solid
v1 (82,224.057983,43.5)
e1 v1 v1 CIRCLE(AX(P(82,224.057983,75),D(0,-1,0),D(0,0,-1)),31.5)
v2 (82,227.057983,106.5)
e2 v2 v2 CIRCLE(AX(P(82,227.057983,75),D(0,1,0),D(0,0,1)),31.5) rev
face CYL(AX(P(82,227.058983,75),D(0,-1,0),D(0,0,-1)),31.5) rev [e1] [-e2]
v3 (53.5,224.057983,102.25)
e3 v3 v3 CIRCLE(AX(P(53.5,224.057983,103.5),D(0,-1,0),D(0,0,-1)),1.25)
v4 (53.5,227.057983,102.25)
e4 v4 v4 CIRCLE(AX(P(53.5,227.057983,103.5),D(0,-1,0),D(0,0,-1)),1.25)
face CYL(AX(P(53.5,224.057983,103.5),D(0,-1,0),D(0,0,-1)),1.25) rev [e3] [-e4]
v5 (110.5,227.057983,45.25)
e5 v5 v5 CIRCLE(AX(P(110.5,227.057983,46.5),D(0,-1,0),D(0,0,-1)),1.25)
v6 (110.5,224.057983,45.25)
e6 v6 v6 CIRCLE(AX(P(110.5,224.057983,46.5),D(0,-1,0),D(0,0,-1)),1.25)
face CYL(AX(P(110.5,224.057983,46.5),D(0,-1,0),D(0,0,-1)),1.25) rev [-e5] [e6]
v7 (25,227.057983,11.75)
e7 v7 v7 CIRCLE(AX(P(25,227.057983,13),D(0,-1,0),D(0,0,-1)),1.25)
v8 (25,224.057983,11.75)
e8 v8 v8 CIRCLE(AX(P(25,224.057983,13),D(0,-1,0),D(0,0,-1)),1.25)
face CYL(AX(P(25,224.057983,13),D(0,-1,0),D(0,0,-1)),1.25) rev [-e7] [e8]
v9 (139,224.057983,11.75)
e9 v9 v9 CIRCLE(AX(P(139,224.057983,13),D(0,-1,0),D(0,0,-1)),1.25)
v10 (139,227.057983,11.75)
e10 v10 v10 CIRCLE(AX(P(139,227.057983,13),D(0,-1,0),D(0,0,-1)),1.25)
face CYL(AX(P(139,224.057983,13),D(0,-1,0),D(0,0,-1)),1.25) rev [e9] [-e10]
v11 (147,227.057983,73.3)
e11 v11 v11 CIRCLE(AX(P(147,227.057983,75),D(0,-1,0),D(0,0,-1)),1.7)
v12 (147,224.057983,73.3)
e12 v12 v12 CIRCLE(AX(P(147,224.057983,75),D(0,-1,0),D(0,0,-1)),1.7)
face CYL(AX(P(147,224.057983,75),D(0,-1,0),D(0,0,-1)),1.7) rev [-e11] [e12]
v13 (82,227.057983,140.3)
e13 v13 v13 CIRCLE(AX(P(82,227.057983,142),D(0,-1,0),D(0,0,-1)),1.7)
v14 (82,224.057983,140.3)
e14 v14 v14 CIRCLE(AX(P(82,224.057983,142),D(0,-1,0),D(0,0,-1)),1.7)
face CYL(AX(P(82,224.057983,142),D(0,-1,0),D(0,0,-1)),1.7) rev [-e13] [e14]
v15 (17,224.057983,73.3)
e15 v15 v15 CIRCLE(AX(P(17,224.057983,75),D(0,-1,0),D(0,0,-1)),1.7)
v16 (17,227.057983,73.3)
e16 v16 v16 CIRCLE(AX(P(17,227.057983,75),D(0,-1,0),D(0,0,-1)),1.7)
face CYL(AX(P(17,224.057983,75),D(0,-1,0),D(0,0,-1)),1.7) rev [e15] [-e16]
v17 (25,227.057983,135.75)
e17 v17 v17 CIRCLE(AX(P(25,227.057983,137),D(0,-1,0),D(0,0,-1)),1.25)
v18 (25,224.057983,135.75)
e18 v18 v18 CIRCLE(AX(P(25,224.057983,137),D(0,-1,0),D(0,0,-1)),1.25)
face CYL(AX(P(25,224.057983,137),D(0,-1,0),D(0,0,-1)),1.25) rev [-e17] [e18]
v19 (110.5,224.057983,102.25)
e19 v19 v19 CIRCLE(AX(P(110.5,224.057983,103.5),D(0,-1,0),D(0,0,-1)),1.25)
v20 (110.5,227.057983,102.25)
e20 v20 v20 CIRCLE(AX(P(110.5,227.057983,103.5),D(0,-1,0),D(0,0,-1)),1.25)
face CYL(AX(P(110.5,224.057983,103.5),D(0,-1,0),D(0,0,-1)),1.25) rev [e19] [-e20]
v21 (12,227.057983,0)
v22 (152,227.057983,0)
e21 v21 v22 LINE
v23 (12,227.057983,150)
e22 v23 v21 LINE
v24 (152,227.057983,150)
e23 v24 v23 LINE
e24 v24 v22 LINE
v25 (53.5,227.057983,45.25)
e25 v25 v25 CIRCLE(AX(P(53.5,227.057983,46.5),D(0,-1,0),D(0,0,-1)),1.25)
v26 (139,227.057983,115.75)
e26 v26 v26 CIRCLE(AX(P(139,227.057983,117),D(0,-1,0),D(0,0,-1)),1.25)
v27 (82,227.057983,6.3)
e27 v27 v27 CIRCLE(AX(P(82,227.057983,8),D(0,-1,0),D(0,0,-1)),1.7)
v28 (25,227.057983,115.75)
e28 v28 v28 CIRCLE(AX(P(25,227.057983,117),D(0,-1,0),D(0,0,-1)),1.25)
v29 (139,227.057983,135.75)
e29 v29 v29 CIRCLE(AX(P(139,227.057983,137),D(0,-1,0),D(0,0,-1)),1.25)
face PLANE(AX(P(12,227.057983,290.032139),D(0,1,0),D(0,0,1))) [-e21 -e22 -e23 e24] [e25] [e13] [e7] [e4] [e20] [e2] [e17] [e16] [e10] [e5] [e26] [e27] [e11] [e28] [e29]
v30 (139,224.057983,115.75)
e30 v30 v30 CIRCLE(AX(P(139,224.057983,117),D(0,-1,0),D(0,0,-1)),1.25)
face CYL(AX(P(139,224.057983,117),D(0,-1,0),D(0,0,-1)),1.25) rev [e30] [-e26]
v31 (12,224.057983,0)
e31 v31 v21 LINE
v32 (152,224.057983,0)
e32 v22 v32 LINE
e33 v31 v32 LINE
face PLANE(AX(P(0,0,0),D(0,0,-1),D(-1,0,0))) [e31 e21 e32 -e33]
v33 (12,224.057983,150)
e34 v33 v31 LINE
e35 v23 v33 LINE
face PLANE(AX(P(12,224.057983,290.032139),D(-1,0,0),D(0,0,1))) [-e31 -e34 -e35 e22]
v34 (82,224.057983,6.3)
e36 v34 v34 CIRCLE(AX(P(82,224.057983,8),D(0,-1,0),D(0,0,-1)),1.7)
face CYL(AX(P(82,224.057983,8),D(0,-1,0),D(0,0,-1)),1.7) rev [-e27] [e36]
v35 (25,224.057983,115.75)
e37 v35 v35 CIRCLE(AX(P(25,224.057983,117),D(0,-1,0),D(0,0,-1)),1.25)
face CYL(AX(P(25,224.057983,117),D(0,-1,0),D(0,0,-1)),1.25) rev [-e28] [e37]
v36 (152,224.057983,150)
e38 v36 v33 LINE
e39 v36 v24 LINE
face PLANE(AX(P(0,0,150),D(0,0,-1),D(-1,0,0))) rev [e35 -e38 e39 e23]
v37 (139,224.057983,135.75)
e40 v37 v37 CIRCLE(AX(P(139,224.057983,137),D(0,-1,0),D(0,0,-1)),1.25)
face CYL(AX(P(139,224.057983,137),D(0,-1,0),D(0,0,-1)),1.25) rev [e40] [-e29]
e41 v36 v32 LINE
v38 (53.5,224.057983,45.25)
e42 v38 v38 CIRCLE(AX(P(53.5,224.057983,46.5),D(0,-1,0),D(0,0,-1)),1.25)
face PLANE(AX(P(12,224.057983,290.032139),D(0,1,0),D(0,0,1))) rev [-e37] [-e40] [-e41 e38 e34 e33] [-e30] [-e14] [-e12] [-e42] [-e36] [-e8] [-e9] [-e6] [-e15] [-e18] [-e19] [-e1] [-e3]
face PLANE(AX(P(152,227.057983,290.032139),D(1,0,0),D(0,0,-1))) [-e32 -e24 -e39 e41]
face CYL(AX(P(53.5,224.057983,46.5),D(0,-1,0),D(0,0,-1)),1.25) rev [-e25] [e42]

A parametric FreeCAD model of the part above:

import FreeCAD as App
import Part
import Sketcher
from FreeCAD import Vector

doc = App.newDocument("Part")
params = doc.addObject("Spreadsheet::Sheet", "Params")
for row, (alias, value) in enumerate([
    ("sketch1_width", "140 mm"),
    ("sketch1_height", "3 mm"),
    ("pad1_length", "150 mm"),
    ("sketch2_diameter", "63 mm"),
    ("sketch3_diameter", "2.5 mm"),
    ("hole_diameter", "2.5 mm"),
    ("sketch4_diameter", "3.4 mm"),
    ("hole2_diameter", "3.4 mm"),
    ("sketch5_diameter", "2.5 mm"),
    ("hole3_diameter", "2.5 mm"),
], start=1):
    params.set(f"A{row}", alias)
    params.set(f"B{row}", "=" + value)
    params.setAlias(f"B{row}", alias)

body = doc.addObject("PartDesign::Body", "Body")

# Sketch on XY plane
sketch1 = body.newObject("Sketcher::SketchObject", "Sketch")
sketch1.AttachmentSupport = (doc.getObject("XY_Plane"), [""])
sketch1.MapMode = "FlatFace"
sketch1.addGeometry([
    Part.LineSegment(Vector(12, 227.1, 0), Vector(12, 224.1, 0)),
    Part.LineSegment(Vector(12, 224.1, 0), Vector(152, 224.1, 0)),
    Part.LineSegment(Vector(152, 224.1, 0), Vector(152, 227.1, 0)),
    Part.LineSegment(Vector(152, 227.1, 0), Vector(12, 227.1, 0)),
], False)
sketch1.addConstraint([
    Sketcher.Constraint("Coincident", 0, 2, 1, 1),
    Sketcher.Constraint("Coincident", 1, 2, 2, 1),
    Sketcher.Constraint("Coincident", 2, 2, 3, 1),
    Sketcher.Constraint("Coincident", 3, 2, 0, 1),
    Sketcher.Constraint("Vertical", 0),
    Sketcher.Constraint("Horizontal", 1),
    Sketcher.Constraint("Vertical", 2),
    Sketcher.Constraint("Horizontal", 3),
    Sketcher.Constraint("DistanceX", 1, 1, 1, 2, 140.0),
    Sketcher.Constraint("DistanceY", 0, 2, 0, 1, 3.0),
    Sketcher.Constraint("DistanceX", -1, 1, 0, 2, 12.0),
    Sketcher.Constraint("DistanceY", -1, 1, 0, 2, 224.057983),
])
sketch1.setExpression("Constraints[8]", "Params.sketch1_width")
sketch1.setExpression("Constraints[9]", "Params.sketch1_height")
pad1 = body.newObject("PartDesign::Pad", "Pad")
pad1.Profile = sketch1
pad1.setExpression("Length", "Params.pad1_length")

# Sketch on XZ plane
sketch2 = body.newObject("Sketcher::SketchObject", "Sketch001")
sketch2.AttachmentSupport = (doc.getObject("XZ_Plane"), [""])
sketch2.MapMode = "FlatFace"
sketch2.AttachmentOffset = App.Placement(Vector(0, 0, -224.057983), App.Rotation())
sketch2.addGeometry(Part.Circle(Vector(82, 75, 0), Vector(0, 0, 1), 32), False)
sketch2.addConstraint([
    Sketcher.Constraint("Diameter", 0, 63.0),
    Sketcher.Constraint("DistanceX", -1, 1, 0, 3, 82.0),
    Sketcher.Constraint("DistanceY", -1, 1, 0, 3, 75.0),
])
sketch2.setExpression("Constraints[0]", "Params.sketch2_diameter")
pocket1 = body.newObject("PartDesign::Pocket", "Pocket")
pocket1.Profile = sketch2
pocket1.Type = "UpToFirst"

# Sketch on XZ plane
sketch3 = body.newObject("Sketcher::SketchObject", "Sketch002")
sketch3.AttachmentSupport = (doc.getObject("XZ_Plane"), [""])
sketch3.MapMode = "FlatFace"
sketch3.AttachmentOffset = App.Placement(Vector(0, 0, -224.057983), App.Rotation())
sketch3.addGeometry([
    Part.Circle(Vector(53.5, 103.5, 0), Vector(0, 0, 1), 1.2),
    Part.Circle(Vector(53.5, 46.5, 0), Vector(0, 0, 1), 1.2),
    Part.Circle(Vector(110.5, 46.5, 0), Vector(0, 0, 1), 1.2),
    Part.Circle(Vector(110.5, 103.5, 0), Vector(0, 0, 1), 1.2),
], False)
sketch3.addConstraint([
    Sketcher.Constraint("Equal", 0, 1),
    Sketcher.Constraint("Equal", 1, 2),
    Sketcher.Constraint("Equal", 2, 3),
    Sketcher.Constraint("Horizontal", 1, 3, 2, 3),
    Sketcher.Constraint("Horizontal", 0, 3, 3, 3),
    Sketcher.Constraint("Vertical", 0, 3, 1, 3),
    Sketcher.Constraint("Vertical", 2, 3, 3, 3),
    Sketcher.Constraint("Diameter", 0, 2.5),
    Sketcher.Constraint("DistanceY", 1, 3, 0, 3, 57.0),
    Sketcher.Constraint("DistanceX", 1, 3, 2, 3, 57.0),
    Sketcher.Constraint("DistanceX", -1, 1, 0, 3, 53.5),
    Sketcher.Constraint("DistanceY", -1, 1, 0, 3, 103.5),
])
sketch3.setExpression("Constraints[7]", "Params.sketch3_diameter")
doc.recompute()
hole = body.newObject("PartDesign::Hole", "Hole")
hole.Profile = sketch3
hole.ThreadType = "None"
hole.setExpression("Diameter", "Params.hole_diameter")
hole.DepthType = "ThroughAll"

# Sketch on XZ plane
sketch4 = body.newObject("Sketcher::SketchObject", "Sketch003")
sketch4.AttachmentSupport = (doc.getObject("XZ_Plane"), [""])
sketch4.MapMode = "FlatFace"
sketch4.AttachmentOffset = App.Placement(Vector(0, 0, -224.057983), App.Rotation())
sketch4.addGeometry([
    Part.Circle(Vector(82, 142, 0), Vector(0, 0, 1), 1.7),
    Part.Circle(Vector(147, 75, 0), Vector(0, 0, 1), 1.7),
    Part.Circle(Vector(82, 8, 0), Vector(0, 0, 1), 1.7),
    Part.Circle(Vector(17, 75, 0), Vector(0, 0, 1), 1.7),
], False)
sketch4.addConstraint([
    Sketcher.Constraint("Equal", 0, 1),
    Sketcher.Constraint("Equal", 1, 2),
    Sketcher.Constraint("Equal", 2, 3),
    Sketcher.Constraint("Horizontal", 1, 3, 3, 3),
    Sketcher.Constraint("Vertical", 0, 3, 2, 3),
    Sketcher.Constraint("Diameter", 0, 3.4),
    Sketcher.Constraint("DistanceX", -1, 1, 0, 3, 82.0),
    Sketcher.Constraint("DistanceY", -1, 1, 0, 3, 142.0),
    Sketcher.Constraint("DistanceX", -1, 1, 1, 3, 147.0),
    Sketcher.Constraint("DistanceY", -1, 1, 1, 3, 75.0),
    Sketcher.Constraint("DistanceY", -1, 1, 2, 3, 8.0),
    Sketcher.Constraint("DistanceX", -1, 1, 3, 3, 17.0),
])
sketch4.setExpression("Constraints[5]", "Params.sketch4_diameter")
doc.recompute()
hole2 = body.newObject("PartDesign::Hole", "Hole001")
hole2.Profile = sketch4
hole2.ThreadType = "None"
hole2.setExpression("Diameter", "Params.hole2_diameter")
hole2.DepthType = "ThroughAll"

# Sketch on XZ plane
sketch5 = body.newObject("Sketcher::SketchObject", "Sketch004")
sketch5.AttachmentSupport = (doc.getObject("XZ_Plane"), [""])
sketch5.MapMode = "FlatFace"
sketch5.AttachmentOffset = App.Placement(Vector(0, 0, -224.057983), App.Rotation())
sketch5.addGeometry([
    Part.Circle(Vector(139, 137, 0), Vector(0, 0, 1), 1.2),  # 0
    Part.Circle(Vector(139, 117, 0), Vector(0, 0, 1), 1.2),  # 1
    Part.Circle(Vector(139, 13, 0), Vector(0, 0, 1), 1.2),  # 2
    Part.Circle(Vector(25, 137, 0), Vector(0, 0, 1), 1.2),  # 3
    Part.Circle(Vector(25, 117, 0), Vector(0, 0, 1), 1.2),  # 4
    Part.Circle(Vector(25, 13, 0), Vector(0, 0, 1), 1.2),  # 5
], False)
sketch5.addConstraint([
    Sketcher.Constraint("Equal", 0, 1),
    Sketcher.Constraint("Equal", 1, 2),
    Sketcher.Constraint("Equal", 2, 3),
    Sketcher.Constraint("Equal", 3, 4),
    Sketcher.Constraint("Equal", 4, 5),
    Sketcher.Constraint("Horizontal", 0, 3, 3, 3),
    Sketcher.Constraint("Horizontal", 1, 3, 4, 3),
    Sketcher.Constraint("Horizontal", 2, 3, 5, 3),
    Sketcher.Constraint("Vertical", 0, 3, 1, 3),
    Sketcher.Constraint("Vertical", 1, 3, 2, 3),
    Sketcher.Constraint("Vertical", 3, 3, 4, 3),
    Sketcher.Constraint("Vertical", 4, 3, 5, 3),
    Sketcher.Constraint("Diameter", 0, 2.5),
    Sketcher.Constraint("DistanceX", -1, 1, 0, 3, 139.0),
    Sketcher.Constraint("DistanceY", -1, 1, 0, 3, 137.0),
    Sketcher.Constraint("DistanceY", -1, 1, 1, 3, 117.0),
    Sketcher.Constraint("DistanceY", -1, 1, 2, 3, 13.0),
    Sketcher.Constraint("DistanceX", -1, 1, 3, 3, 25.0),
])
sketch5.setExpression("Constraints[12]", "Params.sketch5_diameter")
doc.recompute()
hole3 = body.newObject("PartDesign::Hole", "Hole002")
hole3.Profile = sketch5
hole3.ThreadType = "None"
hole3.setExpression("Diameter", "Params.hole3_diameter")
hole3.DepthType = "ThroughAll"

doc.recompute()
